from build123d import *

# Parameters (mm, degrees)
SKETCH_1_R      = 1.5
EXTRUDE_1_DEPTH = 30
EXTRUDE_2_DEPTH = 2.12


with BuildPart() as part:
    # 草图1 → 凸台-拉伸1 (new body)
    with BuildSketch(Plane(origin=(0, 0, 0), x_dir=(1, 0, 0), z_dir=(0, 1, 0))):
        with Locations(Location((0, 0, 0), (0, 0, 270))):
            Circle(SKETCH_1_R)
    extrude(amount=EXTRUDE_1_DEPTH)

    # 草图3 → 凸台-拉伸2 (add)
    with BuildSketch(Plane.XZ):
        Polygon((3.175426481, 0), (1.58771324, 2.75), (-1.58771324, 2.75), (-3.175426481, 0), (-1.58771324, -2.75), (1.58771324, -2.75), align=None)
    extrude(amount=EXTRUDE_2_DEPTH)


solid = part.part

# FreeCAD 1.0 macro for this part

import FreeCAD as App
import Part
import Sketcher
from FreeCAD import Vector
Q = App.Units.Quantity

doc = App.newDocument("Part")
params = doc.addObject("Spreadsheet::Sheet", "Params")
for row, (alias, value) in enumerate([
    ("sketch1_diameter", "3 mm"),
    ("pad1_length", "30 mm"),
    ("pad2_length", "2.12 mm"),
], start=1):
    params.set(f"A{row}", alias)
    params.set(f"B{row}", "=" + value)
    params.setAlias(f"B{row}", alias)

body = doc.addObject("PartDesign::Body", "Body")

sketch1 = body.newObject("Sketcher::SketchObject", "Sketch")
sketch1.AttachmentSupport = (doc.getObject("XZ_Plane"), [""])
sketch1.MapMode = "FlatFace"
sketch1.addGeometry(Part.Circle(Vector(0, 0, 0), Vector(0, 0, 1), 1.5), False)
sketch1.addConstraint([
    Sketcher.Constraint("Coincident", 0, 3, -1, 1),
    Sketcher.Constraint("Diameter", 0, 3.0),
])
sketch1.setExpression("Constraints[1]", "Params.sketch1_diameter")
pad1 = body.newObject("PartDesign::Pad", "Pad")
pad1.Profile = sketch1
pad1.setExpression("Length", "Params.pad1_length")
pad1.Reversed = True

sketch2 = body.newObject("Sketcher::SketchObject", "Sketch001")
sketch2.AttachmentSupport = (doc.getObject("XZ_Plane"), [""])
sketch2.MapMode = "FlatFace"
sketch2.addGeometry([
    Part.LineSegment(Vector(3.2, 0, 0), Vector(1.6, 2.8, 0)),
    Part.LineSegment(Vector(1.6, 2.8, 0), Vector(-1.6, 2.8, 0)),
    Part.LineSegment(Vector(-1.6, 2.8, 0), Vector(-3.2, 0, 0)),
    Part.LineSegment(Vector(-3.2, 0, 0), Vector(-1.6, -2.8, 0)),
    Part.LineSegment(Vector(-1.6, -2.8, 0), Vector(1.6, -2.8, 0)),
    Part.LineSegment(Vector(1.6, -2.8, 0), Vector(3.2, 0, 0)),
], False)
sketch2.addConstraint([
    Sketcher.Constraint("Coincident", 0, 2, 1, 1),
    Sketcher.Constraint("Coincident", 1, 2, 2, 1),
    Sketcher.Constraint("Coincident", 2, 2, 3, 1),
    Sketcher.Constraint("Coincident", 3, 2, 4, 1),
    Sketcher.Constraint("Coincident", 4, 2, 5, 1),
    Sketcher.Constraint("Coincident", 5, 2, 0, 1),
    Sketcher.Constraint("Horizontal", 1),
    Sketcher.Constraint("Horizontal", 4),
    Sketcher.Constraint("Symmetric", 0, 2, 3, 2, -1, 1),
    Sketcher.Constraint("Symmetric", 2, 2, 5, 2, -1, 1),
    Sketcher.Constraint("PointOnObject", 2, 2, -1),
    Sketcher.Constraint("Parallel", 2, 5),
    Sketcher.Constraint("Vertical", 1, 2, 3, 2),
    Sketcher.Constraint("Angle", 0, Q("120 deg")),
    Sketcher.Constraint("DistanceY", 3, 2, 1, 2, 5.5),
    Sketcher.Constraint("DistanceX", 1, 2, 1, 1, 3.175426),
])
pad2 = body.newObject("PartDesign::Pad", "Pad001")
pad2.Profile = sketch2
pad2.setExpression("Length", "Params.pad2_length")

doc.recompute()
